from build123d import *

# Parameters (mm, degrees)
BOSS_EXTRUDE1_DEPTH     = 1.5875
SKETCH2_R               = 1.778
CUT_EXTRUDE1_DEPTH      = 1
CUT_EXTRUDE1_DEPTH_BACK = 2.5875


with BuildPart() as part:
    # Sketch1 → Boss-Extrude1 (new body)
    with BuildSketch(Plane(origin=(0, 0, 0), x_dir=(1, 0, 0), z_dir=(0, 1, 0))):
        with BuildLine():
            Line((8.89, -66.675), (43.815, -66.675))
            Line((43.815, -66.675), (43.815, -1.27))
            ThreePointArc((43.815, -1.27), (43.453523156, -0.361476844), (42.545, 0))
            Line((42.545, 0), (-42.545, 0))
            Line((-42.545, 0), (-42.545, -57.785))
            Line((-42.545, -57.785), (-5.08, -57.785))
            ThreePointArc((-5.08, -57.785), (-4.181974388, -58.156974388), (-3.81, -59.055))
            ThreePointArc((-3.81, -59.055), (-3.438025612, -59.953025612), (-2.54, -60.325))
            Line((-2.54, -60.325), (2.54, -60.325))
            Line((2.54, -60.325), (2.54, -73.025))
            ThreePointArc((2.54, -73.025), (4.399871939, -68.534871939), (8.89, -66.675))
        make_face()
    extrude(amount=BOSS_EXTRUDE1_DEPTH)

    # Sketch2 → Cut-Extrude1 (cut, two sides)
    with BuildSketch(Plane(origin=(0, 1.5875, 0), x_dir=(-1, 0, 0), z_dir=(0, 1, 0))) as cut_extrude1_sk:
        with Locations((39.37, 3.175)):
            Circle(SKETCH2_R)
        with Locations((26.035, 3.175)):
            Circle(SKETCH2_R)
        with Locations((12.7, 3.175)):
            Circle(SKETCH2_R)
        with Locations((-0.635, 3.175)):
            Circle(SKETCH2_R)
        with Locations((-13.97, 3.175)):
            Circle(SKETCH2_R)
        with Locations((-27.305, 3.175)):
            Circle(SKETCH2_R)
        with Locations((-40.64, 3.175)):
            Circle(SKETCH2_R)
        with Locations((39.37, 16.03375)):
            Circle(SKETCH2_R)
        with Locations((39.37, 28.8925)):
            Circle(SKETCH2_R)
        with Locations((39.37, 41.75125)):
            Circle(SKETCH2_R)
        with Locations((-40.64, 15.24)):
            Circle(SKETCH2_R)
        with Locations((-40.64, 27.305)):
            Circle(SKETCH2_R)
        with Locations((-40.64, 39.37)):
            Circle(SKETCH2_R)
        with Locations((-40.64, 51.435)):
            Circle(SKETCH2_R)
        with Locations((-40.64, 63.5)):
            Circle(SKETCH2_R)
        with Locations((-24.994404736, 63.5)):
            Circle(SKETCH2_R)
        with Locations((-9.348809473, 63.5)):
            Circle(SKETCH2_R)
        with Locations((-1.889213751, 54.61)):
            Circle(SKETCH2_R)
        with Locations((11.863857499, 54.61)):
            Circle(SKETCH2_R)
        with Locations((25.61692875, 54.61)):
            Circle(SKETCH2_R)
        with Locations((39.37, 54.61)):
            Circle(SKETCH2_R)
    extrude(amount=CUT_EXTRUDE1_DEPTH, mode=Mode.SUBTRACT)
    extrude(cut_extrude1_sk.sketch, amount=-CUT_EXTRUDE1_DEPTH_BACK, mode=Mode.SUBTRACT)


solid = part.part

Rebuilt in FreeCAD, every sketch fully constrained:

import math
import FreeCAD as App
import Part
import Sketcher

V = App.Vector
Q = App.Units.Quantity

doc = App.newDocument("Part")
body = doc.addObject("PartDesign::Body", "Body")

# Sketch on XZ plane
sketch1 = body.newObject("Sketcher::SketchObject", "Sketch")
sketch1.AttachmentSupport = (doc.getObject("XZ_Plane"), [""])
sketch1.MapMode = "FlatFace"
sketch1.addGeometry([
    Part.LineSegment(V(8.89, 66.675, 0), V(43.815, 66.675, 0)),  # 0
    Part.LineSegment(V(43.815, 66.675, 0), V(43.815, 1.27, 0)),  # 1
    Part.ArcOfCircle(Part.Circle(V(42.579667, 1.235333, 0), V(0, 0, 1), 1.23582), math.radians(-91.607451), math.radians(1.607451)),  # 2
    Part.LineSegment(V(42.545, 0, 0), V(-42.545, 0, 0)),  # 3
    Part.LineSegment(V(-42.545, 0, 0), V(-42.545, 57.785, 0)),  # 4
    Part.LineSegment(V(-42.545, 57.785, 0), V(-5.08, 57.785, 0)),  # 5
    Part.ArcOfCircle(Part.Circle(V(-5.08, 59.055, 0), V(0, 0, 1), 1.27), math.radians(-90), math.radians(0)),  # 6
    Part.ArcOfCircle(Part.Circle(V(-2.54, 59.055, 0), V(0, 0, 1), 1.27), math.radians(90), math.radians(180)),  # 7
    Part.LineSegment(V(-2.54, 60.325, 0), V(2.54, 60.325, 0)),  # 8
    Part.LineSegment(V(2.54, 60.325, 0), V(2.54, 73.025, 0)),  # 9
    Part.ArcOfCircle(Part.Circle(V(8.89, 73.025, 0), V(0, 0, 1), 6.35), math.radians(180), math.radians(270)),  # 10
], False)
sketch1.addConstraint([
    Sketcher.Constraint("Coincident", 0, 2, 1, 1),
    Sketcher.Constraint("Coincident", 1, 2, 2, 2),
    Sketcher.Constraint("Coincident", 2, 1, 3, 1),
    Sketcher.Constraint("Coincident", 3, 2, 4, 1),
    Sketcher.Constraint("Coincident", 4, 2, 5, 1),
    Sketcher.Constraint("Tangent", 5, 2, 6, 1),
    Sketcher.Constraint("Tangent", 6, 2, 7, 2),
    Sketcher.Constraint("Tangent", 7, 1, 8, 1),
    Sketcher.Constraint("Coincident", 8, 2, 9, 1),
    Sketcher.Constraint("Tangent", 9, 2, 10, 1),
    Sketcher.Constraint("Tangent", 10, 2, 0, 1),
    Sketcher.Constraint("Horizontal", 0),
    Sketcher.Constraint("Vertical", 1),
    Sketcher.Constraint("Horizontal", 3),
    Sketcher.Constraint("Vertical", 4),
    Sketcher.Constraint("Horizontal", 5),
    Sketcher.Constraint("Horizontal", 8),
    Sketcher.Constraint("Vertical", 9),
    Sketcher.Constraint("Equal", 6, 7),
    Sketcher.Constraint("Symmetric", 2, 1, 3, 2, -1, 1),
    Sketcher.Constraint("Horizontal", 6, 3, 7, 3),
    Sketcher.Constraint("Radius", 6, Q("0.05 in")),
    Sketcher.Constraint("Radius", 10, Q("0.25 in")),
    Sketcher.Constraint("DistanceX", 8, 1, 8, 2, Q("0.2 in")),
    Sketcher.Constraint("DistanceY", 9, 1, 9, 2, Q("0.5 in")),
    Sketcher.Constraint("DistanceX", 3, 2, 3, 1, Q("3.35 in")),
    Sketcher.Constraint("DistanceX", 6, 3, -1, 1, Q("0.2 in")),
    Sketcher.Constraint("DistanceX", 3, 2, 1, 2, Q("3.4 in")),
    Sketcher.Constraint("DistanceY", 1, 2, 1, 1, Q("2.575 in")),
    Sketcher.Constraint("DistanceY", 4, 1, 4, 2, Q("2.275 in")),
    Sketcher.Constraint("Radius", 2, 1.23582),
])
pad1 = body.newObject("PartDesign::Pad", "Pad")
pad1.Profile = sketch1
pad1.Length = Q("0.0625 in")
pad1.Reversed = True

# Sketch on XZ plane
sketch2 = body.newObject("Sketcher::SketchObject", "Sketch001")
sketch2.AttachmentSupport = (doc.getObject("XZ_Plane"), [""])
sketch2.MapMode = "FlatFace"
sketch2.AttachmentOffset = App.Placement(V(0, 0, -0.0625 * 25.4), App.Rotation())
sketch2.addGeometry([
    Part.Circle(V(-39.37, 3.175, 0), V(0, 0, 1), 1.778),  # 0
    Part.Circle(V(-26.035, 3.175, 0), V(0, 0, 1), 1.778),  # 1
    Part.Circle(V(-12.7, 3.175, 0), V(0, 0, 1), 1.778),  # 2
    Part.Circle(V(0.635, 3.175, 0), V(0, 0, 1), 1.778),  # 3
    Part.Circle(V(13.97, 3.175, 0), V(0, 0, 1), 1.778),  # 4
    Part.Circle(V(27.305, 3.175, 0), V(0, 0, 1), 1.778),  # 5
    Part.Circle(V(40.64, 3.175, 0), V(0, 0, 1), 1.778),  # 6
    Part.Circle(V(-39.37, 16.03375, 0), V(0, 0, 1), 1.778),  # 7
    Part.Circle(V(-39.37, 28.8925, 0), V(0, 0, 1), 1.778),  # 8
    Part.Circle(V(-39.37, 41.75125, 0), V(0, 0, 1), 1.778),  # 9
    Part.Circle(V(40.64, 15.24, 0), V(0, 0, 1), 1.778),  # 10
    Part.Circle(V(40.64, 27.305, 0), V(0, 0, 1), 1.778),  # 11
    Part.Circle(V(40.64, 39.37, 0), V(0, 0, 1), 1.778),  # 12
    Part.Circle(V(40.64, 51.435, 0), V(0, 0, 1), 1.778),  # 13
    Part.Circle(V(40.64, 63.5, 0), V(0, 0, 1), 1.778),  # 14
    Part.Circle(V(24.994405, 63.5, 0), V(0, 0, 1), 1.778),  # 15
    Part.Circle(V(9.348809, 63.5, 0), V(0, 0, 1), 1.778),  # 16
    Part.Circle(V(1.889214, 54.61, 0), V(0, 0, 1), 1.778),  # 17
    Part.Circle(V(-11.863857, 54.61, 0), V(0, 0, 1), 1.778),  # 18
    Part.Circle(V(-25.616929, 54.61, 0), V(0, 0, 1), 1.778),  # 19
    Part.Circle(V(-39.37, 54.61, 0), V(0, 0, 1), 1.778),  # 20
], False)
sketch2.addConstraint([
    Sketcher.Constraint("Equal", 0, 1),
    Sketcher.Constraint("Equal", 1, 2),
    Sketcher.Constraint("Equal", 2, 3),
    Sketcher.Constraint("Equal", 3, 4),
    Sketcher.Constraint("Equal", 4, 5),
    Sketcher.Constraint("Equal", 5, 6),
    Sketcher.Constraint("Equal", 6, 7),
    Sketcher.Constraint("Equal", 7, 8),
    Sketcher.Constraint("Equal", 8, 9),
    Sketcher.Constraint("Equal", 9, 10),
    Sketcher.Constraint("Equal", 10, 11),
    Sketcher.Constraint("Equal", 11, 12),
    Sketcher.Constraint("Equal", 12, 13),
    Sketcher.Constraint("Equal", 13, 14),
    Sketcher.Constraint("Equal", 14, 15),
    Sketcher.Constraint("Equal", 15, 16),
    Sketcher.Constraint("Equal", 16, 17),
    Sketcher.Constraint("Equal", 17, 18),
    Sketcher.Constraint("Equal", 18, 19),
    Sketcher.Constraint("Equal", 19, 20),
    Sketcher.Constraint("Horizontal", 0, 3, 1, 3),
    Sketcher.Constraint("Horizontal", 1, 3, 2, 3),
    Sketcher.Constraint("Horizontal", 2, 3, 3, 3),
    Sketcher.Constraint("Horizontal", 3, 3, 4, 3),
    Sketcher.Constraint("Horizontal", 4, 3, 5, 3),
    Sketcher.Constraint("Horizontal", 5, 3, 6, 3),
    Sketcher.Constraint("Horizontal", 14, 3, 15, 3),
    Sketcher.Constraint("Horizontal", 15, 3, 16, 3),
    Sketcher.Constraint("Horizontal", 17, 3, 18, 3),
    Sketcher.Constraint("Horizontal", 18, 3, 19, 3),
    Sketcher.Constraint("Horizontal", 19, 3, 20, 3),
    Sketcher.Constraint("Vertical", 0, 3, 7, 3),
    Sketcher.Constraint("Vertical", 7, 3, 8, 3),
    Sketcher.Constraint("Vertical", 8, 3, 9, 3),
    Sketcher.Constraint("Vertical", 6, 3, 10, 3),
    Sketcher.Constraint("Vertical", 10, 3, 11, 3),
    Sketcher.Constraint("Vertical", 11, 3, 12, 3),
    Sketcher.Constraint("Vertical", 12, 3, 13, 3),
    Sketcher.Constraint("Vertical", 13, 3, 14, 3),
    Sketcher.Constraint("Vertical", 9, 3, 20, 3),
    Sketcher.Constraint("Diameter", 0, Q("0.14 in")),
    Sketcher.Constraint("DistanceX", 2, 3, -1, 1, Q("0.5 in")),
    Sketcher.Constraint("DistanceX", -1, 1, 6, 3, Q("1.6 in")),
    Sketcher.Constraint("DistanceY", -1, 1, 10, 3, Q("0.6 in")),
    Sketcher.Constraint("DistanceY", -1, 1, 14, 3, Q("2.5 in")),
    Sketcher.Constraint("DistanceX", 0, 3, 4, 3, Q("2.1 in")),
    Sketcher.Constraint("DistanceX", 1, 3, 5, 3, Q("2.1 in")),
    Sketcher.Constraint("DistanceY", 6, 3, 13, 3, Q("1.9 in")),
    Sketcher.Constraint("DistanceY", 12, 3, 17, 3, Q("0.6 in")),
    Sketcher.Constraint("DistanceX", 0, 3, -1, 1, Q("1.55 in")),
    Sketcher.Constraint("DistanceY", -1, 1, 12, 3, Q("1.55 in")),
    Sketcher.Constraint("DistanceX", 1, 3, 3, 3, Q("1.05 in")),
    Sketcher.Constraint("DistanceY", 6, 3, 11, 3, Q("0.95 in")),
    Sketcher.Constraint("DistanceY", -1, 1, 0, 3, Q("0.125 in")),
    Sketcher.Constraint("DistanceX", 1, 3, -1, 1, Q("1.025 in")),
    Sketcher.Constraint("DistanceY", -1, 1, 8, 3, Q("1.1375 in")),
    Sketcher.Constraint("DistanceY", 7, 3, 9, 3, Q("1.0125 in")),
    Sketcher.Constraint("DistanceY", -1, 1, 7, 3, 16.03375),
    Sketcher.Constraint("DistanceX", -1, 1, 16, 3, 9.348809),
    Sketcher.Constraint("DistanceX", 19, 3, -1, 1, 25.616929),
    Sketcher.Constraint("DistanceX", 17, 3, 15, 3, 23.105191),
    Sketcher.Constraint("DistanceX", 18, 3, 17, 3, 13.753071),
    Sketcher.Constraint("DistanceX", 19, 3, 18, 3, 13.753071),
])
pocket1 = body.newObject("PartDesign::Pocket", "Pocket")
pocket1.Profile = sketch2
pocket1.Type = "ThroughAll"
pocket1.Midplane = True

doc.recompute()
